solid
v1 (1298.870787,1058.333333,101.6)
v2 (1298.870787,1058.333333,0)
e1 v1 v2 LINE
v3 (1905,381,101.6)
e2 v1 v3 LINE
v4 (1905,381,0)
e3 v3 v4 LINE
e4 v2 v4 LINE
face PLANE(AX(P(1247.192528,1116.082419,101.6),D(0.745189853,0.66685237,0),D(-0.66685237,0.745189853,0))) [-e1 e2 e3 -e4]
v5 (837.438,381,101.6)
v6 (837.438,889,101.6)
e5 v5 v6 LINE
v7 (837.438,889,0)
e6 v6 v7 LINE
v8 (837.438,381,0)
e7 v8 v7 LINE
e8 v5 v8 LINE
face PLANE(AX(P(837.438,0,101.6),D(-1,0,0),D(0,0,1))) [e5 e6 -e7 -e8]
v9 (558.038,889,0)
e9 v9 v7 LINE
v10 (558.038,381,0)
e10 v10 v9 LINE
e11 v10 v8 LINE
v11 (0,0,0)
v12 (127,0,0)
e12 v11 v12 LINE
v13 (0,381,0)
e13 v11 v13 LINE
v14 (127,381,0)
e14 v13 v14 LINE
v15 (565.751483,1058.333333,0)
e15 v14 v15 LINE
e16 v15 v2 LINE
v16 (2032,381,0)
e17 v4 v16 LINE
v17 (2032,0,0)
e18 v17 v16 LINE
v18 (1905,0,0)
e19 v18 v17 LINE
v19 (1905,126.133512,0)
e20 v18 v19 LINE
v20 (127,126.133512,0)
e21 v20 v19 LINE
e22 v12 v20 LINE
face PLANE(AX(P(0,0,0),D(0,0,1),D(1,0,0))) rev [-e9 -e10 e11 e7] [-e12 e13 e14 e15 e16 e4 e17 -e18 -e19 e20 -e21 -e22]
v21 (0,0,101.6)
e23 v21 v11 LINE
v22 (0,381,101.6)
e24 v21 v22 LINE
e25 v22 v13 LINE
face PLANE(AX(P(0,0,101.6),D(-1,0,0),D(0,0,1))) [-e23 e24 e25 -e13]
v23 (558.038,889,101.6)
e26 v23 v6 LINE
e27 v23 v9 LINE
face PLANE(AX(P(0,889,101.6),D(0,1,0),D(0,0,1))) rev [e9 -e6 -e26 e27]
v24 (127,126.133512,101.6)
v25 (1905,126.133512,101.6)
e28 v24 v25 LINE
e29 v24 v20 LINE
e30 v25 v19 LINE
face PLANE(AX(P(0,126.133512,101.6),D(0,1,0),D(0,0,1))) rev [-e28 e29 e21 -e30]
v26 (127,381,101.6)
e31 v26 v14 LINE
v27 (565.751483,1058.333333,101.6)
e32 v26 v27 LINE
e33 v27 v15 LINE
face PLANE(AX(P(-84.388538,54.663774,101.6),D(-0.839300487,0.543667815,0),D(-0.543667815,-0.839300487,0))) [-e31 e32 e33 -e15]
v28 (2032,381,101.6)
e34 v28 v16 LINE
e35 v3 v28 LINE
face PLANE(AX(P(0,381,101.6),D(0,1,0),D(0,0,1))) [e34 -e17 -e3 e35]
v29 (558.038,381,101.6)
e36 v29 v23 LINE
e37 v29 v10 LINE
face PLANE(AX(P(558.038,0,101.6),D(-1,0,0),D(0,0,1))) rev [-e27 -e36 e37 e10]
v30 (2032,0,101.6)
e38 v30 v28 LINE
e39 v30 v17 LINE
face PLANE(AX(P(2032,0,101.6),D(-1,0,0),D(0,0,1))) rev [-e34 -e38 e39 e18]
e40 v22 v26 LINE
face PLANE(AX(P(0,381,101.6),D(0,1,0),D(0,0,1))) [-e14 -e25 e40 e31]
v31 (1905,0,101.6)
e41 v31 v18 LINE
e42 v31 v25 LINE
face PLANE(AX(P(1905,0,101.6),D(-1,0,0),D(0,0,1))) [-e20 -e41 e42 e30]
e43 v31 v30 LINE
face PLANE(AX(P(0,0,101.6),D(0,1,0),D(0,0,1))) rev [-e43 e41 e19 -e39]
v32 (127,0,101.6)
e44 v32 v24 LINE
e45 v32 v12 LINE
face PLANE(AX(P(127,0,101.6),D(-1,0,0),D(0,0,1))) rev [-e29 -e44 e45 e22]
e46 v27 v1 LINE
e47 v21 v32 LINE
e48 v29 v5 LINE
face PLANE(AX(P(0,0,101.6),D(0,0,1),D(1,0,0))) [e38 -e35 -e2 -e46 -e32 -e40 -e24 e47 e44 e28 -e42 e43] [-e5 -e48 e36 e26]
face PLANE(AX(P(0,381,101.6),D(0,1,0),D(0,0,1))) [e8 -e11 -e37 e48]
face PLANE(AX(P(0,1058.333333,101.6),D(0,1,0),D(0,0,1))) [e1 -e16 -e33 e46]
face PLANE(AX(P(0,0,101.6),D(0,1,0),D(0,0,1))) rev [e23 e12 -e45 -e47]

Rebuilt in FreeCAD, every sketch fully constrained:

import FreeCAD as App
import Part
import Sketcher
Q = App.Units.Quantity


def add_polygon(sketch, points):
    """Adds a closed chain of lines whose ends are joined by coincident constraints."""
    first, n = sketch.GeometryCount, len(points)
    for a, b in zip(points, points[1:] + points[:1]):
        sketch.addGeometry(Part.LineSegment(App.Vector(*a, 0), App.Vector(*b, 0)), False)
    for i in range(n):
        sketch.addConstraint(Sketcher.Constraint("Coincident", first + i, 2, first + (i + 1) % n, 1))

doc = App.newDocument("Part")
body = doc.addObject("PartDesign::Body", "Body")

# Sketch on XY plane
sketch1 = body.newObject("Sketcher::SketchObject", "Sketch")
sketch1.AttachmentSupport = (doc.getObject("XY_Plane"), [""])
sketch1.MapMode = "FlatFace"
add_polygon(sketch1, [(1905, 126.133512), (1905, 0), (2032, 0), (2032, 381), (1905, 381), (1298.870787, 1058.333333), (565.751483, 1058.333333), (127, 381), (0, 381), (0, 0), (127, 0), (127, 126.133512)])  # lines 0-11
add_polygon(sketch1, [(558.038, 381), (558.038, 889), (837.438, 889), (837.438, 381)])  # lines 12-15
sketch1.addConstraint([
    Sketcher.Constraint("Vertical", 0),
    Sketcher.Constraint("Horizontal", 1),
    Sketcher.Constraint("Vertical", 2),
    Sketcher.Constraint("Horizontal", 3),
    Sketcher.Constraint("Horizontal", 5),
    Sketcher.Constraint("Horizontal", 7),
    Sketcher.Constraint("Vertical", 8),
    Sketcher.Constraint("Horizontal", 9),
    Sketcher.Constraint("Vertical", 10),
    Sketcher.Constraint("Horizontal", 11),
    Sketcher.Constraint("Vertical", 12),
    Sketcher.Constraint("Horizontal", 13),
    Sketcher.Constraint("Vertical", 14),
    Sketcher.Constraint("Horizontal", 15),
    Sketcher.Constraint("Coincident", 8, 2, -1, 1),
    Sketcher.Constraint("PointOnObject", 0, 2, -1),
    Sketcher.Constraint("Horizontal", 3, 2, 6, 2),
    Sketcher.Constraint("Horizontal", 7, 2, 14, 2),
    Sketcher.Constraint("Vertical", 0, 2, 3, 2),
    Sketcher.Constraint("Vertical", 6, 2, 9, 2),
    Sketcher.Constraint("Equal", 3, 7),
    Sketcher.Constraint("DistanceX", 1, 1, 1, 2, Q("5 in")),
    Sketcher.Constraint("DistanceX", 11, 1, 11, 2, Q("70 in")),
    Sketcher.Constraint("DistanceX", 13, 1, 13, 2, Q("11 in")),
    Sketcher.Constraint("DistanceY", 2, 1, 2, 2, Q("15 in")),
    Sketcher.Constraint("DistanceY", 12, 1, 12, 2, Q("20 in")),
    Sketcher.Constraint("DistanceX", -1, 1, 12, 2, Q("21.97 in")),
    Sketcher.Constraint("DistanceY", 0, 2, 0, 1, 126.133512),
    Sketcher.Constraint("Distance", 4, 908.940629),
    Sketcher.Constraint("DistanceX", 5, 2, 5, 1, 733.119304),
    Sketcher.Constraint("DistanceY", 10, 2, 5, 2, 932.199822),
])
pad1 = body.newObject("PartDesign::Pad", "Pad")
pad1.Profile = sketch1
pad1.Length = Q("4 in")

doc.recompute()
